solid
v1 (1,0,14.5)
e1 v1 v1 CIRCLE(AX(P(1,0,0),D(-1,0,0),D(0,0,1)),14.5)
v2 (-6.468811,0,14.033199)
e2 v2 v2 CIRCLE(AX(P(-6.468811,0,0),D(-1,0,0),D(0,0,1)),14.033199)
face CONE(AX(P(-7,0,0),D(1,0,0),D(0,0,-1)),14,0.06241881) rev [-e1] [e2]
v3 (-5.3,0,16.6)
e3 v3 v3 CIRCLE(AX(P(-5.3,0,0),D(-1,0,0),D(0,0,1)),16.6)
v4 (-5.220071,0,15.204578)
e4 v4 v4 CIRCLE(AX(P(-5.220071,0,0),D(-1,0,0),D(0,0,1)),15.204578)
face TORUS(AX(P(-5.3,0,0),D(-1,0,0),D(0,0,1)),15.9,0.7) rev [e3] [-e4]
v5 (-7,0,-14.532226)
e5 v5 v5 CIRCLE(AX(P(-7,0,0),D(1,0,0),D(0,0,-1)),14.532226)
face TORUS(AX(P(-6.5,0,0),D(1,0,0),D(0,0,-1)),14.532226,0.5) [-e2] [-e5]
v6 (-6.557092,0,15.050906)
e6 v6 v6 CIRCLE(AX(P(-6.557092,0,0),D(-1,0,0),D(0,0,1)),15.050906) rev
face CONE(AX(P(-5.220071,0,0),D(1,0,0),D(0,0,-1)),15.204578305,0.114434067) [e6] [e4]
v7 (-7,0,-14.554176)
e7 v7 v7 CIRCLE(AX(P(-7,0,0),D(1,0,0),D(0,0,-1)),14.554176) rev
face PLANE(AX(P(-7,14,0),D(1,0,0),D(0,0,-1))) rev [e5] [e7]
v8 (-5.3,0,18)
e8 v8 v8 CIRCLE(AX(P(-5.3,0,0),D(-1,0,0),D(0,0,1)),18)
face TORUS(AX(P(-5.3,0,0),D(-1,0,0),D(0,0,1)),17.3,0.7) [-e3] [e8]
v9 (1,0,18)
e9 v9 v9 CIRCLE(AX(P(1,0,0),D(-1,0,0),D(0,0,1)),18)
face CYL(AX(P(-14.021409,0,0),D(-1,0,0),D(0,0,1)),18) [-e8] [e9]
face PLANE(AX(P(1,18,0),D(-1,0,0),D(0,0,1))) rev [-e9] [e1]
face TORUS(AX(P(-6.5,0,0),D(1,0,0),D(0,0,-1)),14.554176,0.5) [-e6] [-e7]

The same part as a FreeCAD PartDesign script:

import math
import FreeCAD as App
import Part
import Sketcher
Q = App.Units.Quantity


def edges_at(feature, points):
    """Names of the edges that pass closest to the given points."""
    edges = feature.Shape.Edges
    near = lambda p: min(range(len(edges)), key=lambda i: edges[i].distToShape(Part.Vertex(*p))[0])
    return sorted({f"Edge{near(p) + 1}" for p in points})

doc = App.newDocument("Part")
params = doc.addObject("Spreadsheet::Sheet", "Params")
for row, (alias, value) in enumerate([
    ("sketch1_radius", "0.7 mm"),
    ("sketch1_height", "1 mm"),
    ("sketch1_width", "6.3 mm"),
    ("sketch1_height2", "3.5 mm"),
    ("revolution_angle", "360 deg"),
    ("fillet_radius", "0.5 mm"),
], start=1):
    params.set(f"A{row}", alias)
    params.set(f"B{row}", "=" + value)
    params.setAlias(f"B{row}", alias)

body = doc.addObject("PartDesign::Body", "Body")

sketch1 = doc.addObject("Sketcher::SketchObject", "Sketch")
body.addObject(sketch1)
sketch1.AttachmentSupport = (doc.XY_Plane, [""])
sketch1.MapMode = "FlatFace"
sketch1.addGeometry(Part.LineSegment(App.Vector(1, 14.5, 0), App.Vector(1, 18, 0)), False)
sketch1.addGeometry(Part.LineSegment(App.Vector(1, 18, 0), App.Vector(-5.3, 18, 0)), False)
sketch1.addGeometry(Part.ArcOfCircle(Part.Circle(App.Vector(-5.3, 17.3, 0), App.Vector(0, 0, 1), 0.7), math.radians(90), math.radians(270)), False)
sketch1.addGeometry(Part.ArcOfCircle(Part.Circle(App.Vector(-5.3, 15.9, 0), App.Vector(0, 0, 1), 0.7), math.radians(-83), math.radians(90)), False)
sketch1.addGeometry(Part.LineSegment(App.Vector(-5.2, 15.2, 0), App.Vector(-7, 15, 0)), False)
sketch1.addGeometry(Part.LineSegment(App.Vector(-7, 15, 0), App.Vector(-7, 14, 0)), False)
sketch1.addGeometry(Part.LineSegment(App.Vector(-7, 14, 0), App.Vector(1, 14.5, 0)), False)
sketch1.addConstraint(Sketcher.Constraint("Coincident", 0, 2, 1, 1))
sketch1.addConstraint(Sketcher.Constraint("Tangent", 1, 2, 2, 1))
sketch1.addConstraint(Sketcher.Constraint("Tangent", 2, 2, 3, 2))
sketch1.addConstraint(Sketcher.Constraint("Tangent", 3, 1, 4, 1))
sketch1.addConstraint(Sketcher.Constraint("Coincident", 4, 2, 5, 1))
sketch1.addConstraint(Sketcher.Constraint("Coincident", 5, 2, 6, 1))
sketch1.addConstraint(Sketcher.Constraint("Coincident", 6, 2, 0, 1))
sketch1.addConstraint(Sketcher.Constraint("Vertical", 0))
sketch1.addConstraint(Sketcher.Constraint("Horizontal", 1))
sketch1.addConstraint(Sketcher.Constraint("Vertical", 5))
sketch1.addConstraint(Sketcher.Constraint("Equal", 2, 3))
sketch1.addConstraint(Sketcher.Constraint("Vertical", 2, 3, 3, 3))
sketch1.addConstraint(Sketcher.Constraint("Radius", 2, Q("0.7 mm")))
sketch1.addConstraint(Sketcher.Constraint("DistanceY", 5, 2, 5, 1, Q("1 mm")))
sketch1.addConstraint(Sketcher.Constraint("DistanceX", 1, 2, 1, 1, Q("6.3 mm")))
sketch1.addConstraint(Sketcher.Constraint("DistanceY", 0, 1, 0, 2, Q("3.5 mm")))
sketch1.addConstraint(Sketcher.Constraint("DistanceX", -1, 1, 0, 2, Q("1 mm")))
sketch1.addConstraint(Sketcher.Constraint("DistanceY", -1, 1, 0, 2, Q("18 mm")))
sketch1.addConstraint(Sketcher.Constraint("DistanceX", 4, 2, -1, 1, Q("7 mm")))
sketch1.addConstraint(Sketcher.Constraint("DistanceY", -1, 1, 4, 2, Q("15 mm")))
sketch1.setExpression("Constraints[12]", "Params.sketch1_radius")
sketch1.setExpression("Constraints[13]", "Params.sketch1_height")
sketch1.setExpression("Constraints[14]", "Params.sketch1_width")
sketch1.setExpression("Constraints[15]", "Params.sketch1_height2")
revolution = doc.addObject("PartDesign::Revolution", "Revolution")
body.addObject(revolution)
revolution.Profile = sketch1
revolution.ReferenceAxis = (sketch1, ["H_Axis"])
revolution.setExpression("Angle", "Params.revolution_angle")
doc.recompute()

fillet = doc.addObject("PartDesign::Fillet", "Fillet")
body.addObject(fillet)
fillet.Base = (revolution, edges_at(revolution, [(-7, 0, -14), (-7, 0, -15)]))
fillet.setExpression("Radius", "Params.fillet_radius")

doc.recompute()
